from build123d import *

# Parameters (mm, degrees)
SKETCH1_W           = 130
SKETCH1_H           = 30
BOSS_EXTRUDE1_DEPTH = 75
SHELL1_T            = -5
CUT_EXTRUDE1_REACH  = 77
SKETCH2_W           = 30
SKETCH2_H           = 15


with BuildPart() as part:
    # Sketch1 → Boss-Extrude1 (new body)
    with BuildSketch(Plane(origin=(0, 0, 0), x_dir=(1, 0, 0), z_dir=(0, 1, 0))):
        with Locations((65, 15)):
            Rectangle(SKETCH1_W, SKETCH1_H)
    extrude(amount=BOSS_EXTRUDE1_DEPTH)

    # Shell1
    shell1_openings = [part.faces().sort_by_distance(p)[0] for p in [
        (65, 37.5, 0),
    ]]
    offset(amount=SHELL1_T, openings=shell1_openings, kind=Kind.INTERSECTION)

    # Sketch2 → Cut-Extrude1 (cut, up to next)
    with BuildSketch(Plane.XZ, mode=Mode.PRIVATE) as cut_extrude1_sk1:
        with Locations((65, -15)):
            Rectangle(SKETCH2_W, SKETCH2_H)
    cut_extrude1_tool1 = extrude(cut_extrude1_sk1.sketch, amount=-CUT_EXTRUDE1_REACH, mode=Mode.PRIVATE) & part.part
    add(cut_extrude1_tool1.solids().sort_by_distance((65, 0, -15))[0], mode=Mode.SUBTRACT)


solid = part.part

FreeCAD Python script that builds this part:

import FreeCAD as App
import Part
import Sketcher
from FreeCAD import Vector


def faces_at(feature, points):
    """Names of the faces that lie closest to the given points."""
    faces = feature.Shape.Faces
    near = lambda p: min(range(len(faces)), key=lambda i: faces[i].distToShape(Part.Vertex(*p))[0])
    return sorted({f"Face{near(p) + 1}" for p in points})


def add_polygon(sketch, points):
    """Adds a closed chain of lines whose ends are joined by coincident constraints."""
    first, n = sketch.GeometryCount, len(points)
    for a, b in zip(points, points[1:] + points[:1]):
        sketch.addGeometry(Part.LineSegment(App.Vector(*a, 0), App.Vector(*b, 0)), False)
    for i in range(n):
        sketch.addConstraint(Sketcher.Constraint("Coincident", first + i, 2, first + (i + 1) % n, 1))

doc = App.newDocument("Part")
body = doc.addObject("PartDesign::Body", "Body")

# Sketch on XZ plane
sketch1 = body.newObject("Sketcher::SketchObject", "Sketch")
sketch1.AttachmentSupport = (doc.getObject("XZ_Plane"), [""])
sketch1.MapMode = "FlatFace"
add_polygon(sketch1, [(0, -30), (0, 0), (130, 0), (130, -30)])  # lines 0-3
sketch1.addConstraint([
    Sketcher.Constraint("Vertical", 0),
    Sketcher.Constraint("Horizontal", 1),
    Sketcher.Constraint("Vertical", 2),
    Sketcher.Constraint("Horizontal", 3),
    Sketcher.Constraint("Coincident", 0, 2, -1, 1),
    Sketcher.Constraint("DistanceX", 1, 1, 1, 2, 130.0),
    Sketcher.Constraint("DistanceY", 0, 1, 0, 2, 30.0),
])
pad1 = body.newObject("PartDesign::Pad", "Pad")
pad1.Profile = sketch1
pad1.Length = 75
pad1.Reversed = True
doc.recompute()

thickness = body.newObject("PartDesign::Thickness", "Thickness")
thickness.Base = (pad1, faces_at(pad1, [(65, 37.5, 0)]))
thickness.Value = 5
thickness.Reversed = True
thickness.Join = "Intersection"

# Sketch on XZ plane
sketch2 = body.newObject("Sketcher::SketchObject", "Sketch001")
sketch2.AttachmentSupport = (doc.getObject("XZ_Plane"), [""])
sketch2.MapMode = "FlatFace"
add_polygon(sketch2, [(50, -8), (50, -22), (80, -22), (80, -8)])  # lines 0-3
sketch2.addConstraint([
    Sketcher.Constraint("Vertical", 0),
    Sketcher.Constraint("Horizontal", 1),
    Sketcher.Constraint("Vertical", 2),
    Sketcher.Constraint("Horizontal", 3),
    Sketcher.Constraint("DistanceX", 1, 1, 1, 2, 30.0),
    Sketcher.Constraint("DistanceY", 0, 2, 0, 1, 15.0),
    Sketcher.Constraint("DistanceX", -1, 1, 0, 2, 50.0),
    Sketcher.Constraint("DistanceY", 0, 2, -1, 1, 22.5),
])
pocket1 = body.newObject("PartDesign::Pocket", "Pocket")
pocket1.Profile = sketch2
pocket1.Type = "UpToFirst"

doc.recompute()
